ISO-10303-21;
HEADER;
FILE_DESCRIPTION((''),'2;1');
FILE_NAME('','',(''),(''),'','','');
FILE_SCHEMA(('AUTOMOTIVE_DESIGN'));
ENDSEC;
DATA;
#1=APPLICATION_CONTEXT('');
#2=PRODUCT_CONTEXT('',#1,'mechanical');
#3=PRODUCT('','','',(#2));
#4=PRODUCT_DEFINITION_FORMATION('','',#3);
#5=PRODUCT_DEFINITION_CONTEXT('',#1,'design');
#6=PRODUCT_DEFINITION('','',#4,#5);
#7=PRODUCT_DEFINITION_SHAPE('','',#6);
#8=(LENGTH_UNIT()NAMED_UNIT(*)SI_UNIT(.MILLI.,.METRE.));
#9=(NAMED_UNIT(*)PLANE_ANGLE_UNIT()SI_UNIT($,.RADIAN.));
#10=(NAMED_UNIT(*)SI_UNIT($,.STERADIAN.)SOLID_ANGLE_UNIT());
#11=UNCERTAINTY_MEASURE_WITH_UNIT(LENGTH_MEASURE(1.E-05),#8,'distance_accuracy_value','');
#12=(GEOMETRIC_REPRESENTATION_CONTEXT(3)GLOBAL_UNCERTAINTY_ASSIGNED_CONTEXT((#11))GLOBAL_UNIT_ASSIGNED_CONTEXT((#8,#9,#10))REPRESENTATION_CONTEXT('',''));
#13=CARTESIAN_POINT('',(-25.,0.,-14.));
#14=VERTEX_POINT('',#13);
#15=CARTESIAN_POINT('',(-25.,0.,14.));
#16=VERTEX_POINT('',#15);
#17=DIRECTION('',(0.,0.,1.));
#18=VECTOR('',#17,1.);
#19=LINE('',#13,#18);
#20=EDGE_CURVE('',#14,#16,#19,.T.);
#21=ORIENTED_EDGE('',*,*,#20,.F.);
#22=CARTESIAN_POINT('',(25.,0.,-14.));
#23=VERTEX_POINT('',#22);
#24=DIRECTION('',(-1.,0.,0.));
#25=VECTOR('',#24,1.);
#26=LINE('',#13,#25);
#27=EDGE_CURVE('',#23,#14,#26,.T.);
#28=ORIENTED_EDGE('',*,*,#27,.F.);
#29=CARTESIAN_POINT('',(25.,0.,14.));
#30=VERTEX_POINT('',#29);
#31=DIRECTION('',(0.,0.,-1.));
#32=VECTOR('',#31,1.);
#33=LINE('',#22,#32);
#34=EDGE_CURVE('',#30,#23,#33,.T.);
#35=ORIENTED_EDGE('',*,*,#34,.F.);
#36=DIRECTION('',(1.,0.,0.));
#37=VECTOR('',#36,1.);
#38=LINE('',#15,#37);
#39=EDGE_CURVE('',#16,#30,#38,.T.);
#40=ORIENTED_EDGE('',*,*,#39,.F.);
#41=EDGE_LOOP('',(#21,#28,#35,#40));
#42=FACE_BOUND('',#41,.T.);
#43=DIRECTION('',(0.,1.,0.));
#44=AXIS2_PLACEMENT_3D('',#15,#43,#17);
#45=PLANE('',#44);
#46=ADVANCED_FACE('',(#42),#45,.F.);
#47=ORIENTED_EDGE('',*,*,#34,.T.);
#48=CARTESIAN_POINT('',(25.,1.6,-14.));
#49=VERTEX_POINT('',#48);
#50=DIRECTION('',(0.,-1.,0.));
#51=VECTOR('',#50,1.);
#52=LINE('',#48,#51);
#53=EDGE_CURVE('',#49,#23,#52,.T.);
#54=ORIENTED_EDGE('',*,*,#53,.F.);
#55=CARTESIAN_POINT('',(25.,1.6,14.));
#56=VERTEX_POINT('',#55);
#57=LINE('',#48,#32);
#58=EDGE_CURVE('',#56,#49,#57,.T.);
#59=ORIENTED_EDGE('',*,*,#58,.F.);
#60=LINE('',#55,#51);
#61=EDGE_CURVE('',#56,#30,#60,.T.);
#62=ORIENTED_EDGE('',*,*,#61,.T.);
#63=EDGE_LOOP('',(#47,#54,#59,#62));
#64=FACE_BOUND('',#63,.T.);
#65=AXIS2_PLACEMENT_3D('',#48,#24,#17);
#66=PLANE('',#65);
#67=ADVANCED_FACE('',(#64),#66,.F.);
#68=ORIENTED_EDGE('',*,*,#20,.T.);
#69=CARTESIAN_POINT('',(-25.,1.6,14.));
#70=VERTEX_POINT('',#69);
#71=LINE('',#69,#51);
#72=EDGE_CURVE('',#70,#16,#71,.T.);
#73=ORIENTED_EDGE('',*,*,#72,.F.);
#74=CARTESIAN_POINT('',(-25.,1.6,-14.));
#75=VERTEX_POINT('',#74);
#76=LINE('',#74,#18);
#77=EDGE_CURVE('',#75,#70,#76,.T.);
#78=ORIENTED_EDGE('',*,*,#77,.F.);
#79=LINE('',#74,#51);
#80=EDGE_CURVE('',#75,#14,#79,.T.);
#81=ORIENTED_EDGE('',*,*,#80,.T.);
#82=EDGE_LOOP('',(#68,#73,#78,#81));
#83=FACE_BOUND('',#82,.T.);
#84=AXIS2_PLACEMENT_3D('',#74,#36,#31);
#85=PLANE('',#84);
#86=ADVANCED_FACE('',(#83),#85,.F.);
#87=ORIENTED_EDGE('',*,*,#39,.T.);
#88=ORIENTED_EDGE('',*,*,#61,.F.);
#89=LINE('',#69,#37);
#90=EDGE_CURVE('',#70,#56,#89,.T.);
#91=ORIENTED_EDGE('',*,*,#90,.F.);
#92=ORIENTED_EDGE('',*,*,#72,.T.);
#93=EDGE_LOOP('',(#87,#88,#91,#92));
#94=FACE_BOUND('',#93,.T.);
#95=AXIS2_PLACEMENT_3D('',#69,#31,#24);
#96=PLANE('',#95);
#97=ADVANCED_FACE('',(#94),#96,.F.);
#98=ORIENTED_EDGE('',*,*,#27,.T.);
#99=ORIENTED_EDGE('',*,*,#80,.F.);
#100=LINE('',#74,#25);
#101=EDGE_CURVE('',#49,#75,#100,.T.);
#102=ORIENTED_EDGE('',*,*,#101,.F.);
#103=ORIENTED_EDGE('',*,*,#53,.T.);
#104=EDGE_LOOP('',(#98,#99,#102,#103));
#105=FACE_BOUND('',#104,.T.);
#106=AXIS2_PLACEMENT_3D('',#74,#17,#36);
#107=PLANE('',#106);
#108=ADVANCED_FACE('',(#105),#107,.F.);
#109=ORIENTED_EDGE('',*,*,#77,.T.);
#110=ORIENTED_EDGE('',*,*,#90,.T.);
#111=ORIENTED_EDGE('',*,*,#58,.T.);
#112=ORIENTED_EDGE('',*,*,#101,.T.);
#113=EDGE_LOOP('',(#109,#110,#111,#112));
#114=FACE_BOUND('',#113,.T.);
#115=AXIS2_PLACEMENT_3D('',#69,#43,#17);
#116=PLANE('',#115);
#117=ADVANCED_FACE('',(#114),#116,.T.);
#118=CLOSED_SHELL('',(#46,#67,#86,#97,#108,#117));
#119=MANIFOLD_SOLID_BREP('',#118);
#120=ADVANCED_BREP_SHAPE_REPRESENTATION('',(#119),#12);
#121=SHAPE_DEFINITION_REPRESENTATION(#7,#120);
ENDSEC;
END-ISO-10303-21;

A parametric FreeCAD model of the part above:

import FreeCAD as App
import Part
import Sketcher

doc = App.newDocument("Part")
body = doc.addObject("PartDesign::Body", "Body")

sketch1 = body.newObject("Sketcher::SketchObject", "Sketch")
sketch1.AttachmentSupport = (doc.getObject("XZ_Plane"), [""])
sketch1.MapMode = "FlatFace"
sketch1.addGeometry(Part.LineSegment(App.Vector(-25, -14, 0), App.Vector(-25, 14, 0)), False)
sketch1.addGeometry(Part.LineSegment(App.Vector(-25, 14, 0), App.Vector(25, 14, 0)), False)
sketch1.addGeometry(Part.LineSegment(App.Vector(25, 14, 0), App.Vector(25, -14, 0)), False)
sketch1.addGeometry(Part.LineSegment(App.Vector(25, -14, 0), App.Vector(-25, -14, 0)), False)
sketch1.addConstraint(Sketcher.Constraint("Coincident", 0, 2, 1, 1))
sketch1.addConstraint(Sketcher.Constraint("Coincident", 1, 2, 2, 1))
sketch1.addConstraint(Sketcher.Constraint("Coincident", 2, 2, 3, 1))
sketch1.addConstraint(Sketcher.Constraint("Coincident", 3, 2, 0, 1))
sketch1.addConstraint(Sketcher.Constraint("Vertical", 0))
sketch1.addConstraint(Sketcher.Constraint("Horizontal", 1))
sketch1.addConstraint(Sketcher.Constraint("Vertical", 2))
sketch1.addConstraint(Sketcher.Constraint("Horizontal", 3))
sketch1.addConstraint(Sketcher.Constraint("Symmetric", 0, 2, 2, 2, -1, 1))
sketch1.addConstraint(Sketcher.Constraint("DistanceX", 1, 1, 1, 2, 50.0))
sketch1.addConstraint(Sketcher.Constraint("DistanceY", 0, 1, 0, 2, 28.0))
pad1 = body.newObject("PartDesign::Pad", "Pad")
pad1.Profile = sketch1
pad1.Length = 1.6
pad1.Reversed = True

doc.recompute()
